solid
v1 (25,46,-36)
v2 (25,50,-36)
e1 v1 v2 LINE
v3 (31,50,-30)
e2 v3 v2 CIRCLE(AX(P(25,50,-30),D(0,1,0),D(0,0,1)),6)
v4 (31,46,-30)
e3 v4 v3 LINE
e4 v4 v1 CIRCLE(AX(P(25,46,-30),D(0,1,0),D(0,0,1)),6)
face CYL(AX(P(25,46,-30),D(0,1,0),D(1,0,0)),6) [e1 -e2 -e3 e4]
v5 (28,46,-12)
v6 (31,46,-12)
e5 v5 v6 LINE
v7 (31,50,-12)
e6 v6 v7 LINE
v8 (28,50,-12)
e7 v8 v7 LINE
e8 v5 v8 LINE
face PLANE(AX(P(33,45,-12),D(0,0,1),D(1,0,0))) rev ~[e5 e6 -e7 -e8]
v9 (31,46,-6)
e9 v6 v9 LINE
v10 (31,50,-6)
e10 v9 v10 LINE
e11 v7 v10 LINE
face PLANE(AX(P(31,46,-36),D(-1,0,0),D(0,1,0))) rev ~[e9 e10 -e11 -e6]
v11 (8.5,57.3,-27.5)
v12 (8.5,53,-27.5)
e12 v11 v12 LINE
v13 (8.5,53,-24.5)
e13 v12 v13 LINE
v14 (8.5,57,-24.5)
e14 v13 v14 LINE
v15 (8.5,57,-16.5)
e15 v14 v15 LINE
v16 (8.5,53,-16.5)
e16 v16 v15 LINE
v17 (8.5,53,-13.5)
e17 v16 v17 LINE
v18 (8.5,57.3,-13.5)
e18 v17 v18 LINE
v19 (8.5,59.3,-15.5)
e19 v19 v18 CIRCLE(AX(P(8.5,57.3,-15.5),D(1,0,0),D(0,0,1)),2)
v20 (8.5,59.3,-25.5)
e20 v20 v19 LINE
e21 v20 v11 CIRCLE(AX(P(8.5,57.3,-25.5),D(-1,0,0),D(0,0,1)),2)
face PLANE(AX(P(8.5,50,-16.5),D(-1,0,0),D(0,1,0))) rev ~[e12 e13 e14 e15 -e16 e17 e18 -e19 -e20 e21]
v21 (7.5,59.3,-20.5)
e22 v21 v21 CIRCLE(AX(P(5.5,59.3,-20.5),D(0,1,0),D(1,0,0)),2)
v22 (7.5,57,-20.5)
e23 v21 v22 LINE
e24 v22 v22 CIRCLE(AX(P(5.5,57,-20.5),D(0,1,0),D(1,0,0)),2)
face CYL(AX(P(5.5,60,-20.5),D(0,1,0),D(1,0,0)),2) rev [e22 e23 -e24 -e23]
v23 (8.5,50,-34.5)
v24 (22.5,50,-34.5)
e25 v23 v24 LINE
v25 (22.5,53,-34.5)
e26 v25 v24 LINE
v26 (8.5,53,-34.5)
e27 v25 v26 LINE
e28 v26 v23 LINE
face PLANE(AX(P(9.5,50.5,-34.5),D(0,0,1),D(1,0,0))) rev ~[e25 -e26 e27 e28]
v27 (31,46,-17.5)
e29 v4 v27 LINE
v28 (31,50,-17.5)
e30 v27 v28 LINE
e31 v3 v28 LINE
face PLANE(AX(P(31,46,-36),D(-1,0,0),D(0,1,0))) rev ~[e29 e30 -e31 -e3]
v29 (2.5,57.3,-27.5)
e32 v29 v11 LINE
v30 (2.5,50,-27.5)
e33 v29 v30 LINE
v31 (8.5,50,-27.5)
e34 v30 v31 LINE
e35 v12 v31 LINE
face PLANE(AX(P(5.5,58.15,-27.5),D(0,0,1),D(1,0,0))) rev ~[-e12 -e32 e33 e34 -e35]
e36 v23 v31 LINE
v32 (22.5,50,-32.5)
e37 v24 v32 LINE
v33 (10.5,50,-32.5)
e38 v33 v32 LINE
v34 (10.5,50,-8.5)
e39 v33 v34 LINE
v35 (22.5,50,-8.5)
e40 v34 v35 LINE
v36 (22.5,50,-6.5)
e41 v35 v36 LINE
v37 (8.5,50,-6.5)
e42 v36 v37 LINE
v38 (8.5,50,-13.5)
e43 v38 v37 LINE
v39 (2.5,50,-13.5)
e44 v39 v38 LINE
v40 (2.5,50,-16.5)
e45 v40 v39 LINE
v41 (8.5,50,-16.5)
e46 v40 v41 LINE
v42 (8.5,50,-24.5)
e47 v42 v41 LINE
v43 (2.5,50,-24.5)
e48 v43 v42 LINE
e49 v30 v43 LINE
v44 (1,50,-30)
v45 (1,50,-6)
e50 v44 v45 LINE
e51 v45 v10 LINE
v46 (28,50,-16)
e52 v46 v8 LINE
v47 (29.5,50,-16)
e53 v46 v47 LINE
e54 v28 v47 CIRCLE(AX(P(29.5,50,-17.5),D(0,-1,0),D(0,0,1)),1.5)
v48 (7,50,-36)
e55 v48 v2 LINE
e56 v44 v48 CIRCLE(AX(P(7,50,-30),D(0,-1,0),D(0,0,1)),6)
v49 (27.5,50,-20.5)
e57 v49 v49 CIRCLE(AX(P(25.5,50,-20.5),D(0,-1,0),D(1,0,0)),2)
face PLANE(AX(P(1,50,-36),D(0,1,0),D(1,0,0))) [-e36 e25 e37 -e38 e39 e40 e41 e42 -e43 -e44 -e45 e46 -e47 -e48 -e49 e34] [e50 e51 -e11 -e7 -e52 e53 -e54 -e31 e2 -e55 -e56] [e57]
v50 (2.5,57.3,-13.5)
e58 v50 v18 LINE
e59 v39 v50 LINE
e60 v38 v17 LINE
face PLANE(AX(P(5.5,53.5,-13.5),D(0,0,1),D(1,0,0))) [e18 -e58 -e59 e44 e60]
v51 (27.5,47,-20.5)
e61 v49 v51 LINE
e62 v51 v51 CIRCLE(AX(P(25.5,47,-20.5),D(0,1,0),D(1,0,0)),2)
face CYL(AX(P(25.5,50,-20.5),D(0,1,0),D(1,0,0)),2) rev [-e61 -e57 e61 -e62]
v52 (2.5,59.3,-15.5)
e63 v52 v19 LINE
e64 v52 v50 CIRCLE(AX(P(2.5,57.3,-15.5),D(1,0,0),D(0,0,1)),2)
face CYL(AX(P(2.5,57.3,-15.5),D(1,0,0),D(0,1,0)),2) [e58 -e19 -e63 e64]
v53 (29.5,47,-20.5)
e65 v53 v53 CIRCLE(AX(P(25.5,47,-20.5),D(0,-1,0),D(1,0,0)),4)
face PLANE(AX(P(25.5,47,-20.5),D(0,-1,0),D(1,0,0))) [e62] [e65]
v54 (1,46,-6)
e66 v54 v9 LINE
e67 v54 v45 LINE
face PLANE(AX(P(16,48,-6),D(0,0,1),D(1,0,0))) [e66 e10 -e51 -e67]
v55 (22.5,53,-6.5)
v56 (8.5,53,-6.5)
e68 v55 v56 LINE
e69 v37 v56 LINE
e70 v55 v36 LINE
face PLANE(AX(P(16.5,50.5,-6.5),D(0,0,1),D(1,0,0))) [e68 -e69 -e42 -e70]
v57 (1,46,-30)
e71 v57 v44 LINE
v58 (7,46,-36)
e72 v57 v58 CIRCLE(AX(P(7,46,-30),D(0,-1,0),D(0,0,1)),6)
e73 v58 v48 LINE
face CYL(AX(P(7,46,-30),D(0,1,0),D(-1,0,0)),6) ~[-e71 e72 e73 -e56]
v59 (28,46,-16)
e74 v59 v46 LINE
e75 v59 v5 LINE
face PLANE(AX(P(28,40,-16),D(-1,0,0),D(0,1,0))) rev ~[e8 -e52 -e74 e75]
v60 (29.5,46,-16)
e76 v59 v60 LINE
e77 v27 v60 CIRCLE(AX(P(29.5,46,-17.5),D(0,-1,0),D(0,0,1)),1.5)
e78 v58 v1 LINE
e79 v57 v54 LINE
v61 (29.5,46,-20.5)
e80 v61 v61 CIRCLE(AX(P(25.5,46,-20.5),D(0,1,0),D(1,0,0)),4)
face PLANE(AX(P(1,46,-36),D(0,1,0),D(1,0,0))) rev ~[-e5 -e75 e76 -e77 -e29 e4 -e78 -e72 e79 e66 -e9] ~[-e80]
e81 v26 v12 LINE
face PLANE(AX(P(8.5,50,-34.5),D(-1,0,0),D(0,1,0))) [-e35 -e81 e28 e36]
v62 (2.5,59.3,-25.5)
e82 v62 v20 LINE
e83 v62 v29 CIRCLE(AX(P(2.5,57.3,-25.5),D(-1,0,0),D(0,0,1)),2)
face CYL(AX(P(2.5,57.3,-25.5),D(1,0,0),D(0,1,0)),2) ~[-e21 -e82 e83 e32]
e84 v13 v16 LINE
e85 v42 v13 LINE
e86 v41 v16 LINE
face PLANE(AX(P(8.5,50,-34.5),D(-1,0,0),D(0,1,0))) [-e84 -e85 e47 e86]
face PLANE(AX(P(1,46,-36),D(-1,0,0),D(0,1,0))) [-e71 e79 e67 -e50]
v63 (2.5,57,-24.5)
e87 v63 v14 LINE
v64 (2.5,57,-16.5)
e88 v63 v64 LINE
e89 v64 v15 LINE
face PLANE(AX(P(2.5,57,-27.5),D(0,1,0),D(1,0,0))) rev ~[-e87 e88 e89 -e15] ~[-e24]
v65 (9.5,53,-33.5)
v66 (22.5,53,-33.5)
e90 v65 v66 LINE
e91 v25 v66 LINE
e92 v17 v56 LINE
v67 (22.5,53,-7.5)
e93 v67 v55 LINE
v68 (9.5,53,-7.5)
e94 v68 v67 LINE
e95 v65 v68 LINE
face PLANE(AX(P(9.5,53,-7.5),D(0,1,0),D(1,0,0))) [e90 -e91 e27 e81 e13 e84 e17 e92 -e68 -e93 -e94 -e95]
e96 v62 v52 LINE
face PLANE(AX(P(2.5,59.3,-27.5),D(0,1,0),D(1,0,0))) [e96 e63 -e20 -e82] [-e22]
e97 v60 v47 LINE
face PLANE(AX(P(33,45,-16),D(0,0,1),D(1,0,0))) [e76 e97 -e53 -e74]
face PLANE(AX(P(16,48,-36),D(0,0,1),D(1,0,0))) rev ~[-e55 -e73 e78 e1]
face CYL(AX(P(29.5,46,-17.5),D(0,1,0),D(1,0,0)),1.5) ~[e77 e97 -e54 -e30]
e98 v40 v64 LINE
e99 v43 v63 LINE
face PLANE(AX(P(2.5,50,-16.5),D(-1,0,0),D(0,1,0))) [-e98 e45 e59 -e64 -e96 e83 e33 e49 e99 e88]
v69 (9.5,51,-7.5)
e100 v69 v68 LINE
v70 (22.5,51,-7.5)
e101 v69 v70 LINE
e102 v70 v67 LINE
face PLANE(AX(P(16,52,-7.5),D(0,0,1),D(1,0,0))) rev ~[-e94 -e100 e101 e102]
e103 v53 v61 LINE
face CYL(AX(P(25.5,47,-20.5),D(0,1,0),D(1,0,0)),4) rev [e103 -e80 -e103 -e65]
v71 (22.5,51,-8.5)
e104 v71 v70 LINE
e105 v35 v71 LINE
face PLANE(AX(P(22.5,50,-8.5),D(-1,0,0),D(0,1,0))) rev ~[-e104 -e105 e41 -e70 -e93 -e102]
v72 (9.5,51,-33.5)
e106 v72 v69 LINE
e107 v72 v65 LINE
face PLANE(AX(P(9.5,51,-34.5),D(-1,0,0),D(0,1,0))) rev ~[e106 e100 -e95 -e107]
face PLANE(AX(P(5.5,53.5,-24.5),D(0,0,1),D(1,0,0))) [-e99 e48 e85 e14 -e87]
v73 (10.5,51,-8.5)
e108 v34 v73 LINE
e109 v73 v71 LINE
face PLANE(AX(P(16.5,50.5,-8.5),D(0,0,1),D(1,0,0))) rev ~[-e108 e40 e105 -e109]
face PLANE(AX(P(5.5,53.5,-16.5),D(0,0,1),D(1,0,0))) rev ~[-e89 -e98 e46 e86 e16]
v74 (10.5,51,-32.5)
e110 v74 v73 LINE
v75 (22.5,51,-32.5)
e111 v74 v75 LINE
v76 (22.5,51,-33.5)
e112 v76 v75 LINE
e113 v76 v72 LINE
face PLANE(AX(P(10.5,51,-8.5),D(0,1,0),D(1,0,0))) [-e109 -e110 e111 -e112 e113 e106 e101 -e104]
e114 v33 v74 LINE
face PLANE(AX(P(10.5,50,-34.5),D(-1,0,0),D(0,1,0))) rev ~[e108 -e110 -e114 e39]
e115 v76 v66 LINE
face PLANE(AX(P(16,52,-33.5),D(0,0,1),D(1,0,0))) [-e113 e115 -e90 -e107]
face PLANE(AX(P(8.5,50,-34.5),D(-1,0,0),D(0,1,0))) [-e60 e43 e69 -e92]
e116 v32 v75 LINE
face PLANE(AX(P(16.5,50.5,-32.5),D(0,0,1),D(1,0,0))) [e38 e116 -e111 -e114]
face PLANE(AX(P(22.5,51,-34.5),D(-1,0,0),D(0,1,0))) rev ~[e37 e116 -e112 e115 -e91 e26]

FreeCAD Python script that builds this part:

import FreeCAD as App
import Part
import Sketcher
from FreeCAD import Vector


def edges_at(feature, points):
    """Names of the edges that pass closest to the given points."""
    edges = feature.Shape.Edges
    near = lambda p: min(range(len(edges)), key=lambda i: edges[i].distToShape(Part.Vertex(*p))[0])
    return sorted({f"Edge{near(p) + 1}" for p in points})

doc = App.newDocument("Part")
params = doc.addObject("Spreadsheet::Sheet", "Params")
for row, (alias, value) in enumerate([
    ("sketch1_width", "10 mm"),
    ("pad1_length", "4 mm"),
    ("sketch2_width", "13 mm"),
    ("sketch2_height", "2 mm"),
    ("pad2_length", "1 mm"),
    ("sketch3_width", "1 mm"),
    ("sketch3_height", "2 mm"),
    ("pad3_length", "28 mm"),
    ("sketch4_width", "2 mm"),
    ("sketch4_height", "1 mm"),
    ("pad4_length", "28 mm"),
    ("sketch5_width", "13 mm"),
    ("sketch5_height", "2 mm"),
    ("pad5_length", "1 mm"),
    ("sketch6_width", "12 mm"),
    ("sketch6_height", "1 mm"),
    ("pad6_length", "2 mm"),
    ("sketch7_width", "12 mm"),
    ("sketch7_height", "1 mm"),
    ("pad7_length", "2 mm"),
    ("sketch8_diameter", "4 mm"),
    ("pad8_length", "5 mm"),
    ("sketch9_diameter", "8 mm"),
    ("pad9_length", "5 mm"),
    ("sketch10_width", "30 mm"),
    ("sketch10_height", "4 mm"),
    ("pad10_length", "30 mm"),
    ("fillet_radius", "6 mm"),
    ("sketch11_diameter", "4 mm"),
    ("pad11_length", "5 mm"),
    ("sketch12_width", "6 mm"),
    ("sketch12_height", "2.3 mm"),
    ("pad12_length", "14 mm"),
    ("fillet2_radius", "2 mm"),
    ("sketch13_width", "6 mm"),
    ("sketch13_height", "7 mm"),
    ("pad13_length", "3 mm"),
    ("sketch14_width", "6 mm"),
    ("sketch14_height", "7 mm"),
    ("pad14_length", "3 mm"),
    ("fillet3_radius", "1.5 mm"),
], start=1):
    params.set(f"A{row}", alias)
    params.set(f"B{row}", "=" + value)
    params.setAlias(f"B{row}", alias)

body = doc.addObject("PartDesign::Body", "Body")

# Sketch on XY plane
sketch1 = body.newObject("Sketcher::SketchObject", "Sketch")
sketch1.AttachmentSupport = (doc.getObject("XY_Plane"), [""])
sketch1.MapMode = "FlatFace"
sketch1.AttachmentOffset = App.Placement(Vector(0, 0, -16), App.Rotation())
sketch1.addGeometry(Part.LineSegment(Vector(28, 50, 0), Vector(28, 40, 0)), False)
sketch1.addGeometry(Part.LineSegment(Vector(28, 40, 0), Vector(38, 40, 0)), False)
sketch1.addGeometry(Part.LineSegment(Vector(38, 40, 0), Vector(38, 50, 0)), False)
sketch1.addGeometry(Part.LineSegment(Vector(38, 50, 0), Vector(28, 50, 0)), False)
sketch1.addConstraint(Sketcher.Constraint("Coincident", 0, 2, 1, 1))
sketch1.addConstraint(Sketcher.Constraint("Coincident", 1, 2, 2, 1))
sketch1.addConstraint(Sketcher.Constraint("Coincident", 2, 2, 3, 1))
sketch1.addConstraint(Sketcher.Constraint("Coincident", 3, 2, 0, 1))
sketch1.addConstraint(Sketcher.Constraint("Vertical", 0))
sketch1.addConstraint(Sketcher.Constraint("Horizontal", 1))
sketch1.addConstraint(Sketcher.Constraint("Vertical", 2))
sketch1.addConstraint(Sketcher.Constraint("Horizontal", 3))
sketch1.addConstraint(Sketcher.Constraint("Equal", 3, 0))
sketch1.addConstraint(Sketcher.Constraint("DistanceX", 1, 1, 1, 2, 10.0))
sketch1.addConstraint(Sketcher.Constraint("DistanceX", -1, 1, 0, 2, 28.0))
sketch1.addConstraint(Sketcher.Constraint("DistanceY", -1, 1, 0, 2, 40.0))
sketch1.setExpression("Constraints[9]", "Params.sketch1_width")
pad1 = body.newObject("PartDesign::Pad", "Pad")
pad1.Profile = sketch1
pad1.setExpression("Length", "Params.pad1_length")
body2 = doc.addObject("PartDesign::Body", "Body001")

# Sketch on XY plane
sketch2 = body2.newObject("Sketcher::SketchObject", "Sketch001")
sketch2.AttachmentSupport = (doc.getObject("XY_Plane001"), [""])
sketch2.MapMode = "FlatFace"
sketch2.AttachmentOffset = App.Placement(Vector(0, 0, -34.5), App.Rotation())
sketch2.addGeometry(Part.LineSegment(Vector(9.5, 53, 0), Vector(9.5, 51, 0)), False)
sketch2.addGeometry(Part.LineSegment(Vector(9.5, 51, 0), Vector(22.5, 51, 0)), False)
sketch2.addGeometry(Part.LineSegment(Vector(22.5, 51, 0), Vector(22.5, 53, 0)), False)
sketch2.addGeometry(Part.LineSegment(Vector(22.5, 53, 0), Vector(9.5, 53, 0)), False)
sketch2.addConstraint(Sketcher.Constraint("Coincident", 0, 2, 1, 1))
sketch2.addConstraint(Sketcher.Constraint("Coincident", 1, 2, 2, 1))
sketch2.addConstraint(Sketcher.Constraint("Coincident", 2, 2, 3, 1))
sketch2.addConstraint(Sketcher.Constraint("Coincident", 3, 2, 0, 1))
sketch2.addConstraint(Sketcher.Constraint("Vertical", 0))
sketch2.addConstraint(Sketcher.Constraint("Horizontal", 1))
sketch2.addConstraint(Sketcher.Constraint("Vertical", 2))
sketch2.addConstraint(Sketcher.Constraint("Horizontal", 3))
sketch2.addConstraint(Sketcher.Constraint("DistanceX", 1, 1, 1, 2, 13.0))
sketch2.addConstraint(Sketcher.Constraint("DistanceY", 0, 2, 0, 1, 2.0))
sketch2.addConstraint(Sketcher.Constraint("DistanceY", -1, 1, 0, 2, 51.0))
sketch2.addConstraint(Sketcher.Constraint("DistanceX", -1, 1, 0, 2, 9.5))
sketch2.setExpression("Constraints[8]", "Params.sketch2_width")
sketch2.setExpression("Constraints[9]", "Params.sketch2_height")
pad2 = body2.newObject("PartDesign::Pad", "Pad001")
pad2.Profile = sketch2
pad2.setExpression("Length", "Params.pad2_length")
body3 = doc.addObject("PartDesign::Body", "Body002")

# Sketch on XY plane
sketch3 = body3.newObject("Sketcher::SketchObject", "Sketch002")
sketch3.AttachmentSupport = (doc.getObject("XY_Plane002"), [""])
sketch3.MapMode = "FlatFace"
sketch3.AttachmentOffset = App.Placement(Vector(0, 0, -34.5), App.Rotation())
sketch3.addGeometry(Part.LineSegment(Vector(8.5, 53, 0), Vector(8.5, 51, 0)), False)
sketch3.addGeometry(Part.LineSegment(Vector(8.5, 51, 0), Vector(9.5, 51, 0)), False)
sketch3.addGeometry(Part.LineSegment(Vector(9.5, 51, 0), Vector(9.5, 53, 0)), False)
sketch3.addGeometry(Part.LineSegment(Vector(9.5, 53, 0), Vector(8.5, 53, 0)), False)
sketch3.addConstraint(Sketcher.Constraint("Coincident", 0, 2, 1, 1))
sketch3.addConstraint(Sketcher.Constraint("Coincident", 1, 2, 2, 1))
sketch3.addConstraint(Sketcher.Constraint("Coincident", 2, 2, 3, 1))
sketch3.addConstraint(Sketcher.Constraint("Coincident", 3, 2, 0, 1))
sketch3.addConstraint(Sketcher.Constraint("Vertical", 0))
sketch3.addConstraint(Sketcher.Constraint("Horizontal", 1))
sketch3.addConstraint(Sketcher.Constraint("Vertical", 2))
sketch3.addConstraint(Sketcher.Constraint("Horizontal", 3))
sketch3.addConstraint(Sketcher.Constraint("DistanceX", 1, 1, 1, 2, 1.0))
sketch3.addConstraint(Sketcher.Constraint("DistanceY", 0, 2, 0, 1, 2.0))
sketch3.addConstraint(Sketcher.Constraint("DistanceY", -1, 1, 0, 2, 51.0))
sketch3.addConstraint(Sketcher.Constraint("DistanceX", -1, 1, 0, 2, 8.5))
sketch3.setExpression("Constraints[8]", "Params.sketch3_width")
sketch3.setExpression("Constraints[9]", "Params.sketch3_height")
pad3 = body3.newObject("PartDesign::Pad", "Pad002")
pad3.Profile = sketch3
pad3.setExpression("Length", "Params.pad3_length")
body4 = doc.addObject("PartDesign::Body", "Body003")

# Sketch on XY plane
sketch4 = body4.newObject("Sketcher::SketchObject", "Sketch003")
sketch4.AttachmentSupport = (doc.getObject("XY_Plane003"), [""])
sketch4.MapMode = "FlatFace"
sketch4.AttachmentOffset = App.Placement(Vector(0, 0, -34.5), App.Rotation())
sketch4.addGeometry(Part.LineSegment(Vector(8.5, 51, 0), Vector(8.5, 50, 0)), False)
sketch4.addGeometry(Part.LineSegment(Vector(8.5, 50, 0), Vector(10.5, 50, 0)), False)
sketch4.addGeometry(Part.LineSegment(Vector(10.5, 50, 0), Vector(10.5, 51, 0)), False)
sketch4.addGeometry(Part.LineSegment(Vector(10.5, 51, 0), Vector(8.5, 51, 0)), False)
sketch4.addConstraint(Sketcher.Constraint("Coincident", 0, 2, 1, 1))
sketch4.addConstraint(Sketcher.Constraint("Coincident", 1, 2, 2, 1))
sketch4.addConstraint(Sketcher.Constraint("Coincident", 2, 2, 3, 1))
sketch4.addConstraint(Sketcher.Constraint("Coincident", 3, 2, 0, 1))
sketch4.addConstraint(Sketcher.Constraint("Vertical", 0))
sketch4.addConstraint(Sketcher.Constraint("Horizontal", 1))
sketch4.addConstraint(Sketcher.Constraint("Vertical", 2))
sketch4.addConstraint(Sketcher.Constraint("Horizontal", 3))
sketch4.addConstraint(Sketcher.Constraint("DistanceX", 1, 1, 1, 2, 2.0))
sketch4.addConstraint(Sketcher.Constraint("DistanceY", 0, 2, 0, 1, 1.0))
sketch4.addConstraint(Sketcher.Constraint("DistanceY", -1, 1, 0, 2, 50.0))
sketch4.addConstraint(Sketcher.Constraint("DistanceX", -1, 1, 0, 2, 8.5))
sketch4.setExpression("Constraints[8]", "Params.sketch4_width")
sketch4.setExpression("Constraints[9]", "Params.sketch4_height")
pad4 = body4.newObject("PartDesign::Pad", "Pad003")
pad4.Profile = sketch4
pad4.setExpression("Length", "Params.pad4_length")
body5 = doc.addObject("PartDesign::Body", "Body004")

# Sketch on XY plane
sketch5 = body5.newObject("Sketcher::SketchObject", "Sketch004")
sketch5.AttachmentSupport = (doc.getObject("XY_Plane004"), [""])
sketch5.MapMode = "FlatFace"
sketch5.AttachmentOffset = App.Placement(Vector(0, 0, -7.5), App.Rotation())
sketch5.addGeometry(Part.LineSegment(Vector(9.5, 53, 0), Vector(9.5, 51, 0)), False)
sketch5.addGeometry(Part.LineSegment(Vector(9.5, 51, 0), Vector(22.5, 51, 0)), False)
sketch5.addGeometry(Part.LineSegment(Vector(22.5, 51, 0), Vector(22.5, 53, 0)), False)
sketch5.addGeometry(Part.LineSegment(Vector(22.5, 53, 0), Vector(9.5, 53, 0)), False)
sketch5.addConstraint(Sketcher.Constraint("Coincident", 0, 2, 1, 1))
sketch5.addConstraint(Sketcher.Constraint("Coincident", 1, 2, 2, 1))
sketch5.addConstraint(Sketcher.Constraint("Coincident", 2, 2, 3, 1))
sketch5.addConstraint(Sketcher.Constraint("Coincident", 3, 2, 0, 1))
sketch5.addConstraint(Sketcher.Constraint("Vertical", 0))
sketch5.addConstraint(Sketcher.Constraint("Horizontal", 1))
sketch5.addConstraint(Sketcher.Constraint("Vertical", 2))
sketch5.addConstraint(Sketcher.Constraint("Horizontal", 3))
sketch5.addConstraint(Sketcher.Constraint("DistanceX", 1, 1, 1, 2, 13.0))
sketch5.addConstraint(Sketcher.Constraint("DistanceY", 0, 2, 0, 1, 2.0))
sketch5.addConstraint(Sketcher.Constraint("DistanceY", -1, 1, 0, 2, 51.0))
sketch5.addConstraint(Sketcher.Constraint("DistanceX", -1, 1, 0, 2, 9.5))
sketch5.setExpression("Constraints[8]", "Params.sketch5_width")
sketch5.setExpression("Constraints[9]", "Params.sketch5_height")
pad5 = body5.newObject("PartDesign::Pad", "Pad004")
pad5.Profile = sketch5
pad5.setExpression("Length", "Params.pad5_length")
body6 = doc.addObject("PartDesign::Body", "Body005")

# Sketch on XY plane
sketch6 = body6.newObject("Sketcher::SketchObject", "Sketch005")
sketch6.AttachmentSupport = (doc.getObject("XY_Plane005"), [""])
sketch6.MapMode = "FlatFace"
sketch6.AttachmentOffset = App.Placement(Vector(0, 0, -8.5), App.Rotation())
sketch6.addGeometry(Part.LineSegment(Vector(10.5, 51, 0), Vector(10.5, 50, 0)), False)
sketch6.addGeometry(Part.LineSegment(Vector(10.5, 50, 0), Vector(22.5, 50, 0)), False)
sketch6.addGeometry(Part.LineSegment(Vector(22.5, 50, 0), Vector(22.5, 51, 0)), False)
sketch6.addGeometry(Part.LineSegment(Vector(22.5, 51, 0), Vector(10.5, 51, 0)), False)
sketch6.addConstraint(Sketcher.Constraint("Coincident", 0, 2, 1, 1))
sketch6.addConstraint(Sketcher.Constraint("Coincident", 1, 2, 2, 1))
sketch6.addConstraint(Sketcher.Constraint("Coincident", 2, 2, 3, 1))
sketch6.addConstraint(Sketcher.Constraint("Coincident", 3, 2, 0, 1))
sketch6.addConstraint(Sketcher.Constraint("Vertical", 0))
sketch6.addConstraint(Sketcher.Constraint("Horizontal", 1))
sketch6.addConstraint(Sketcher.Constraint("Vertical", 2))
sketch6.addConstraint(Sketcher.Constraint("Horizontal", 3))
sketch6.addConstraint(Sketcher.Constraint("DistanceX", 1, 1, 1, 2, 12.0))
sketch6.addConstraint(Sketcher.Constraint("DistanceY", 0, 2, 0, 1, 1.0))
sketch6.addConstraint(Sketcher.Constraint("DistanceY", -1, 1, 0, 2, 50.0))
sketch6.addConstraint(Sketcher.Constraint("DistanceX", -1, 1, 0, 2, 10.5))
sketch6.setExpression("Constraints[8]", "Params.sketch6_width")
sketch6.setExpression("Constraints[9]", "Params.sketch6_height")
pad6 = body6.newObject("PartDesign::Pad", "Pad005")
pad6.Profile = sketch6
pad6.setExpression("Length", "Params.pad6_length")
body7 = doc.addObject("PartDesign::Body", "Body006")

# Sketch on XY plane
sketch7 = body7.newObject("Sketcher::SketchObject", "Sketch006")
sketch7.AttachmentSupport = (doc.getObject("XY_Plane006"), [""])
sketch7.MapMode = "FlatFace"
sketch7.AttachmentOffset = App.Placement(Vector(0, 0, -34.5), App.Rotation())
sketch7.addGeometry(Part.LineSegment(Vector(10.5, 51, 0), Vector(10.5, 50, 0)), False)
sketch7.addGeometry(Part.LineSegment(Vector(10.5, 50, 0), Vector(22.5, 50, 0)), False)
sketch7.addGeometry(Part.LineSegment(Vector(22.5, 50, 0), Vector(22.5, 51, 0)), False)
sketch7.addGeometry(Part.LineSegment(Vector(22.5, 51, 0), Vector(10.5, 51, 0)), False)
sketch7.addConstraint(Sketcher.Constraint("Coincident", 0, 2, 1, 1))
sketch7.addConstraint(Sketcher.Constraint("Coincident", 1, 2, 2, 1))
sketch7.addConstraint(Sketcher.Constraint("Coincident", 2, 2, 3, 1))
sketch7.addConstraint(Sketcher.Constraint("Coincident", 3, 2, 0, 1))
sketch7.addConstraint(Sketcher.Constraint("Vertical", 0))
sketch7.addConstraint(Sketcher.Constraint("Horizontal", 1))
sketch7.addConstraint(Sketcher.Constraint("Vertical", 2))
sketch7.addConstraint(Sketcher.Constraint("Horizontal", 3))
sketch7.addConstraint(Sketcher.Constraint("DistanceX", 1, 1, 1, 2, 12.0))
sketch7.addConstraint(Sketcher.Constraint("DistanceY", 0, 2, 0, 1, 1.0))
sketch7.addConstraint(Sketcher.Constraint("DistanceY", -1, 1, 0, 2, 50.0))
sketch7.addConstraint(Sketcher.Constraint("DistanceX", -1, 1, 0, 2, 10.5))
sketch7.setExpression("Constraints[8]", "Params.sketch7_width")
sketch7.setExpression("Constraints[9]", "Params.sketch7_height")
pad7 = body7.newObject("PartDesign::Pad", "Pad006")
pad7.Profile = sketch7
pad7.setExpression("Length", "Params.pad7_length")
doc.recompute()

boolean = body7.newObject("PartDesign::Boolean", "Boolean")
boolean.Type = "Fuse"
boolean.addObjects([body2])
doc.recompute()

boolean2 = body7.newObject("PartDesign::Boolean", "Boolean001")
boolean2.Type = "Fuse"
boolean2.addObjects([body3])
doc.recompute()

boolean3 = body7.newObject("PartDesign::Boolean", "Boolean002")
boolean3.Type = "Fuse"
boolean3.addObjects([body4])
doc.recompute()

boolean4 = body7.newObject("PartDesign::Boolean", "Boolean003")
boolean4.Type = "Fuse"
boolean4.addObjects([body5])
doc.recompute()

boolean5 = body7.newObject("PartDesign::Boolean", "Boolean004")
boolean5.Type = "Fuse"
boolean5.addObjects([body6])
body8 = doc.addObject("PartDesign::Body", "Body007")

# Sketch on XZ plane
sketch8 = body8.newObject("Sketcher::SketchObject", "Sketch007")
sketch8.AttachmentSupport = (doc.getObject("XZ_Plane007"), [""])
sketch8.MapMode = "FlatFace"
sketch8.AttachmentOffset = App.Placement(Vector(0, 0, -50), App.Rotation())
sketch8.addGeometry(Part.Circle(Vector(25.5, -20.5, 0), Vector(0, 0, 1), 2), False)
sketch8.addConstraint(Sketcher.Constraint("Diameter", 0, 4.0))
sketch8.addConstraint(Sketcher.Constraint("DistanceX", -1, 1, 0, 3, 25.5))
sketch8.addConstraint(Sketcher.Constraint("DistanceY", 0, 3, -1, 1, 20.5))
sketch8.setExpression("Constraints[0]", "Params.sketch8_diameter")
pad8 = body8.newObject("PartDesign::Pad", "Pad007")
pad8.Profile = sketch8
pad8.setExpression("Length", "Params.pad8_length")
body9 = doc.addObject("PartDesign::Body", "Body008")

# Sketch on XZ plane
sketch9 = body9.newObject("Sketcher::SketchObject", "Sketch008")
sketch9.AttachmentSupport = (doc.getObject("XZ_Plane008"), [""])
sketch9.MapMode = "FlatFace"
sketch9.AttachmentOffset = App.Placement(Vector(0, 0, -47), App.Rotation())
sketch9.addGeometry(Part.Circle(Vector(25.5, -20.5, 0), Vector(0, 0, 1), 4), False)
sketch9.addConstraint(Sketcher.Constraint("Diameter", 0, 8.0))
sketch9.addConstraint(Sketcher.Constraint("DistanceX", -1, 1, 0, 3, 25.5))
sketch9.addConstraint(Sketcher.Constraint("DistanceY", 0, 3, -1, 1, 20.5))
sketch9.setExpression("Constraints[0]", "Params.sketch9_diameter")
pad9 = body9.newObject("PartDesign::Pad", "Pad008")
pad9.Profile = sketch9
pad9.setExpression("Length", "Params.pad9_length")
body10 = doc.addObject("PartDesign::Body", "Body009")

# Sketch on XY plane
sketch10 = body10.newObject("Sketcher::SketchObject", "Sketch009")
sketch10.AttachmentSupport = (doc.getObject("XY_Plane009"), [""])
sketch10.MapMode = "FlatFace"
sketch10.AttachmentOffset = App.Placement(Vector(0, 0, -36), App.Rotation())
sketch10.addGeometry(Part.LineSegment(Vector(1, 50, 0), Vector(1, 46, 0)), False)
sketch10.addGeometry(Part.LineSegment(Vector(1, 46, 0), Vector(31, 46, 0)), False)
sketch10.addGeometry(Part.LineSegment(Vector(31, 46, 0), Vector(31, 50, 0)), False)
sketch10.addGeometry(Part.LineSegment(Vector(31, 50, 0), Vector(1, 50, 0)), False)
sketch10.addConstraint(Sketcher.Constraint("Coincident", 0, 2, 1, 1))
sketch10.addConstraint(Sketcher.Constraint("Coincident", 1, 2, 2, 1))
sketch10.addConstraint(Sketcher.Constraint("Coincident", 2, 2, 3, 1))
sketch10.addConstraint(Sketcher.Constraint("Coincident", 3, 2, 0, 1))
sketch10.addConstraint(Sketcher.Constraint("Vertical", 0))
sketch10.addConstraint(Sketcher.Constraint("Horizontal", 1))
sketch10.addConstraint(Sketcher.Constraint("Vertical", 2))
sketch10.addConstraint(Sketcher.Constraint("Horizontal", 3))
sketch10.addConstraint(Sketcher.Constraint("DistanceX", 1, 1, 1, 2, 30.0))
sketch10.addConstraint(Sketcher.Constraint("DistanceY", 0, 2, 0, 1, 4.0))
sketch10.addConstraint(Sketcher.Constraint("DistanceX", -1, 1, 0, 2, 1.0))
sketch10.addConstraint(Sketcher.Constraint("DistanceY", -1, 1, 0, 2, 46.0))
sketch10.setExpression("Constraints[8]", "Params.sketch10_width")
sketch10.setExpression("Constraints[9]", "Params.sketch10_height")
pad10 = body10.newObject("PartDesign::Pad", "Pad009")
pad10.Profile = sketch10
pad10.setExpression("Length", "Params.pad10_length")
doc.recompute()

fillet = body10.newObject("PartDesign::Fillet", "Fillet")
fillet.Base = (pad10, edges_at(pad10, [(1, 48, -36), (31, 48, -36)]))
fillet.setExpression("Radius", "Params.fillet_radius")
doc.recompute()

boolean6 = body10.newObject("PartDesign::Boolean", "Boolean005")
boolean6.Type = "Cut"
boolean6.addObjects([body9])
doc.recompute()

boolean7 = body10.newObject("PartDesign::Boolean", "Boolean006")
boolean7.Type = "Cut"
boolean7.addObjects([body8])
body11 = doc.addObject("PartDesign::Body", "Body010")

# Sketch on XZ plane
sketch11 = body11.newObject("Sketcher::SketchObject", "Sketch010")
sketch11.AttachmentSupport = (doc.getObject("XZ_Plane010"), [""])
sketch11.MapMode = "FlatFace"
sketch11.AttachmentOffset = App.Placement(Vector(0, 0, -60), App.Rotation())
sketch11.addGeometry(Part.Circle(Vector(5.5, -20.5, 0), Vector(0, 0, 1), 2), False)
sketch11.addConstraint(Sketcher.Constraint("Diameter", 0, 4.0))
sketch11.addConstraint(Sketcher.Constraint("DistanceX", -1, 1, 0, 3, 5.5))
sketch11.addConstraint(Sketcher.Constraint("DistanceY", 0, 3, -1, 1, 20.5))
sketch11.setExpression("Constraints[0]", "Params.sketch11_diameter")
pad11 = body11.newObject("PartDesign::Pad", "Pad010")
pad11.Profile = sketch11
pad11.setExpression("Length", "Params.pad11_length")
body12 = doc.addObject("PartDesign::Body", "Body011")

# Sketch on XY plane
sketch12 = body12.newObject("Sketcher::SketchObject", "Sketch011")
sketch12.AttachmentSupport = (doc.getObject("XY_Plane011"), [""])
sketch12.MapMode = "FlatFace"
sketch12.AttachmentOffset = App.Placement(Vector(0, 0, -27.5), App.Rotation())
sketch12.addGeometry(Part.LineSegment(Vector(2.5, 59.3, 0), Vector(2.5, 57, 0)), False)
sketch12.addGeometry(Part.LineSegment(Vector(2.5, 57, 0), Vector(8.5, 57, 0)), False)
sketch12.addGeometry(Part.LineSegment(Vector(8.5, 57, 0), Vector(8.5, 59.3, 0)), False)
sketch12.addGeometry(Part.LineSegment(Vector(8.5, 59.3, 0), Vector(2.5, 59.3, 0)), False)
sketch12.addConstraint(Sketcher.Constraint("Coincident", 0, 2, 1, 1))
sketch12.addConstraint(Sketcher.Constraint("Coincident", 1, 2, 2, 1))
sketch12.addConstraint(Sketcher.Constraint("Coincident", 2, 2, 3, 1))
sketch12.addConstraint(Sketcher.Constraint("Coincident", 3, 2, 0, 1))
sketch12.addConstraint(Sketcher.Constraint("Vertical", 0))
sketch12.addConstraint(Sketcher.Constraint("Horizontal", 1))
sketch12.addConstraint(Sketcher.Constraint("Vertical", 2))
sketch12.addConstraint(Sketcher.Constraint("Horizontal", 3))
sketch12.addConstraint(Sketcher.Constraint("DistanceX", 1, 1, 1, 2, 6.0))
sketch12.addConstraint(Sketcher.Constraint("DistanceY", 0, 2, 0, 1, 2.3))
sketch12.addConstraint(Sketcher.Constraint("DistanceY", -1, 1, 0, 2, 57.0))
sketch12.addConstraint(Sketcher.Constraint("DistanceX", -1, 1, 0, 2, 2.5))
sketch12.setExpression("Constraints[8]", "Params.sketch12_width")
sketch12.setExpression("Constraints[9]", "Params.sketch12_height")
pad12 = body12.newObject("PartDesign::Pad", "Pad011")
pad12.Profile = sketch12
pad12.setExpression("Length", "Params.pad12_length")
doc.recompute()

boolean8 = body12.newObject("PartDesign::Boolean", "Boolean007")
boolean8.Type = "Cut"
boolean8.addObjects([body11])
doc.recompute()

fillet2 = body12.newObject("PartDesign::Fillet", "Fillet001")
fillet2.Base = (boolean8, edges_at(boolean8, [(5.5, 59.3, -13.5), (5.5, 59.3, -27.5)]))
fillet2.setExpression("Radius", "Params.fillet2_radius")
body13 = doc.addObject("PartDesign::Body", "Body012")

# Sketch on XY plane
sketch13 = body13.newObject("Sketcher::SketchObject", "Sketch012")
sketch13.AttachmentSupport = (doc.getObject("XY_Plane012"), [""])
sketch13.MapMode = "FlatFace"
sketch13.AttachmentOffset = App.Placement(Vector(0, 0, -16.5), App.Rotation())
sketch13.addGeometry(Part.LineSegment(Vector(2, 57, 0), Vector(2, 50, 0)), False)
sketch13.addGeometry(Part.LineSegment(Vector(2, 50, 0), Vector(8, 50, 0)), False)
sketch13.addGeometry(Part.LineSegment(Vector(8, 50, 0), Vector(8, 57, 0)), False)
sketch13.addGeometry(Part.LineSegment(Vector(8, 57, 0), Vector(2, 57, 0)), False)
sketch13.addConstraint(Sketcher.Constraint("Coincident", 0, 2, 1, 1))
sketch13.addConstraint(Sketcher.Constraint("Coincident", 1, 2, 2, 1))
sketch13.addConstraint(Sketcher.Constraint("Coincident", 2, 2, 3, 1))
sketch13.addConstraint(Sketcher.Constraint("Coincident", 3, 2, 0, 1))
sketch13.addConstraint(Sketcher.Constraint("Vertical", 0))
sketch13.addConstraint(Sketcher.Constraint("Horizontal", 1))
sketch13.addConstraint(Sketcher.Constraint("Vertical", 2))
sketch13.addConstraint(Sketcher.Constraint("Horizontal", 3))
sketch13.addConstraint(Sketcher.Constraint("DistanceX", 1, 1, 1, 2, 6.0))
sketch13.addConstraint(Sketcher.Constraint("DistanceY", 0, 2, 0, 1, 7.0))
sketch13.addConstraint(Sketcher.Constraint("DistanceY", -1, 1, 0, 2, 50.0))
sketch13.addConstraint(Sketcher.Constraint("DistanceX", -1, 1, 0, 2, 2.5))
sketch13.setExpression("Constraints[8]", "Params.sketch13_width")
sketch13.setExpression("Constraints[9]", "Params.sketch13_height")
pad13 = body13.newObject("PartDesign::Pad", "Pad012")
pad13.Profile = sketch13
pad13.setExpression("Length", "Params.pad13_length")
body14 = doc.addObject("PartDesign::Body", "Body013")

# Sketch on XY plane
sketch14 = body14.newObject("Sketcher::SketchObject", "Sketch013")
sketch14.AttachmentSupport = (doc.getObject("XY_Plane013"), [""])
sketch14.MapMode = "FlatFace"
sketch14.AttachmentOffset = App.Placement(Vector(0, 0, -27.5), App.Rotation())
sketch14.addGeometry(Part.LineSegment(Vector(2, 57, 0), Vector(2, 50, 0)), False)
sketch14.addGeometry(Part.LineSegment(Vector(2, 50, 0), Vector(8, 50, 0)), False)
sketch14.addGeometry(Part.LineSegment(Vector(8, 50, 0), Vector(8, 57, 0)), False)
sketch14.addGeometry(Part.LineSegment(Vector(8, 57, 0), Vector(2, 57, 0)), False)
sketch14.addConstraint(Sketcher.Constraint("Coincident", 0, 2, 1, 1))
sketch14.addConstraint(Sketcher.Constraint("Coincident", 1, 2, 2, 1))
sketch14.addConstraint(Sketcher.Constraint("Coincident", 2, 2, 3, 1))
sketch14.addConstraint(Sketcher.Constraint("Coincident", 3, 2, 0, 1))
sketch14.addConstraint(Sketcher.Constraint("Vertical", 0))
sketch14.addConstraint(Sketcher.Constraint("Horizontal", 1))
sketch14.addConstraint(Sketcher.Constraint("Vertical", 2))
sketch14.addConstraint(Sketcher.Constraint("Horizontal", 3))
sketch14.addConstraint(Sketcher.Constraint("DistanceX", 1, 1, 1, 2, 6.0))
sketch14.addConstraint(Sketcher.Constraint("DistanceY", 0, 2, 0, 1, 7.0))
sketch14.addConstraint(Sketcher.Constraint("DistanceY", -1, 1, 0, 2, 50.0))
sketch14.addConstraint(Sketcher.Constraint("DistanceX", -1, 1, 0, 2, 2.5))
sketch14.setExpression("Constraints[8]", "Params.sketch14_width")
sketch14.setExpression("Constraints[9]", "Params.sketch14_height")
pad14 = body14.newObject("PartDesign::Pad", "Pad013")
pad14.Profile = sketch14
pad14.setExpression("Length", "Params.pad14_length")
doc.recompute()

boolean9 = body14.newObject("PartDesign::Boolean", "Boolean008")
boolean9.Type = "Fuse"
boolean9.addObjects([body12])
doc.recompute()

boolean10 = body14.newObject("PartDesign::Boolean", "Boolean009")
boolean10.Type = "Fuse"
boolean10.addObjects([body13])
doc.recompute()

boolean11 = body14.newObject("PartDesign::Boolean", "Boolean010")
boolean11.Type = "Fuse"
boolean11.addObjects([body7])
doc.recompute()

boolean12 = body14.newObject("PartDesign::Boolean", "Boolean011")
boolean12.Type = "Fuse"
boolean12.addObjects([body10])
doc.recompute()

boolean13 = body14.newObject("PartDesign::Boolean", "Boolean012")
boolean13.Type = "Cut"
boolean13.addObjects([body])
doc.recompute()

fillet3 = body14.newObject("PartDesign::Fillet", "Fillet002")
fillet3.Base = (boolean13, edges_at(boolean13, [(31, 48, -16)]))
fillet3.setExpression("Radius", "Params.fillet3_radius")

doc.recompute()
